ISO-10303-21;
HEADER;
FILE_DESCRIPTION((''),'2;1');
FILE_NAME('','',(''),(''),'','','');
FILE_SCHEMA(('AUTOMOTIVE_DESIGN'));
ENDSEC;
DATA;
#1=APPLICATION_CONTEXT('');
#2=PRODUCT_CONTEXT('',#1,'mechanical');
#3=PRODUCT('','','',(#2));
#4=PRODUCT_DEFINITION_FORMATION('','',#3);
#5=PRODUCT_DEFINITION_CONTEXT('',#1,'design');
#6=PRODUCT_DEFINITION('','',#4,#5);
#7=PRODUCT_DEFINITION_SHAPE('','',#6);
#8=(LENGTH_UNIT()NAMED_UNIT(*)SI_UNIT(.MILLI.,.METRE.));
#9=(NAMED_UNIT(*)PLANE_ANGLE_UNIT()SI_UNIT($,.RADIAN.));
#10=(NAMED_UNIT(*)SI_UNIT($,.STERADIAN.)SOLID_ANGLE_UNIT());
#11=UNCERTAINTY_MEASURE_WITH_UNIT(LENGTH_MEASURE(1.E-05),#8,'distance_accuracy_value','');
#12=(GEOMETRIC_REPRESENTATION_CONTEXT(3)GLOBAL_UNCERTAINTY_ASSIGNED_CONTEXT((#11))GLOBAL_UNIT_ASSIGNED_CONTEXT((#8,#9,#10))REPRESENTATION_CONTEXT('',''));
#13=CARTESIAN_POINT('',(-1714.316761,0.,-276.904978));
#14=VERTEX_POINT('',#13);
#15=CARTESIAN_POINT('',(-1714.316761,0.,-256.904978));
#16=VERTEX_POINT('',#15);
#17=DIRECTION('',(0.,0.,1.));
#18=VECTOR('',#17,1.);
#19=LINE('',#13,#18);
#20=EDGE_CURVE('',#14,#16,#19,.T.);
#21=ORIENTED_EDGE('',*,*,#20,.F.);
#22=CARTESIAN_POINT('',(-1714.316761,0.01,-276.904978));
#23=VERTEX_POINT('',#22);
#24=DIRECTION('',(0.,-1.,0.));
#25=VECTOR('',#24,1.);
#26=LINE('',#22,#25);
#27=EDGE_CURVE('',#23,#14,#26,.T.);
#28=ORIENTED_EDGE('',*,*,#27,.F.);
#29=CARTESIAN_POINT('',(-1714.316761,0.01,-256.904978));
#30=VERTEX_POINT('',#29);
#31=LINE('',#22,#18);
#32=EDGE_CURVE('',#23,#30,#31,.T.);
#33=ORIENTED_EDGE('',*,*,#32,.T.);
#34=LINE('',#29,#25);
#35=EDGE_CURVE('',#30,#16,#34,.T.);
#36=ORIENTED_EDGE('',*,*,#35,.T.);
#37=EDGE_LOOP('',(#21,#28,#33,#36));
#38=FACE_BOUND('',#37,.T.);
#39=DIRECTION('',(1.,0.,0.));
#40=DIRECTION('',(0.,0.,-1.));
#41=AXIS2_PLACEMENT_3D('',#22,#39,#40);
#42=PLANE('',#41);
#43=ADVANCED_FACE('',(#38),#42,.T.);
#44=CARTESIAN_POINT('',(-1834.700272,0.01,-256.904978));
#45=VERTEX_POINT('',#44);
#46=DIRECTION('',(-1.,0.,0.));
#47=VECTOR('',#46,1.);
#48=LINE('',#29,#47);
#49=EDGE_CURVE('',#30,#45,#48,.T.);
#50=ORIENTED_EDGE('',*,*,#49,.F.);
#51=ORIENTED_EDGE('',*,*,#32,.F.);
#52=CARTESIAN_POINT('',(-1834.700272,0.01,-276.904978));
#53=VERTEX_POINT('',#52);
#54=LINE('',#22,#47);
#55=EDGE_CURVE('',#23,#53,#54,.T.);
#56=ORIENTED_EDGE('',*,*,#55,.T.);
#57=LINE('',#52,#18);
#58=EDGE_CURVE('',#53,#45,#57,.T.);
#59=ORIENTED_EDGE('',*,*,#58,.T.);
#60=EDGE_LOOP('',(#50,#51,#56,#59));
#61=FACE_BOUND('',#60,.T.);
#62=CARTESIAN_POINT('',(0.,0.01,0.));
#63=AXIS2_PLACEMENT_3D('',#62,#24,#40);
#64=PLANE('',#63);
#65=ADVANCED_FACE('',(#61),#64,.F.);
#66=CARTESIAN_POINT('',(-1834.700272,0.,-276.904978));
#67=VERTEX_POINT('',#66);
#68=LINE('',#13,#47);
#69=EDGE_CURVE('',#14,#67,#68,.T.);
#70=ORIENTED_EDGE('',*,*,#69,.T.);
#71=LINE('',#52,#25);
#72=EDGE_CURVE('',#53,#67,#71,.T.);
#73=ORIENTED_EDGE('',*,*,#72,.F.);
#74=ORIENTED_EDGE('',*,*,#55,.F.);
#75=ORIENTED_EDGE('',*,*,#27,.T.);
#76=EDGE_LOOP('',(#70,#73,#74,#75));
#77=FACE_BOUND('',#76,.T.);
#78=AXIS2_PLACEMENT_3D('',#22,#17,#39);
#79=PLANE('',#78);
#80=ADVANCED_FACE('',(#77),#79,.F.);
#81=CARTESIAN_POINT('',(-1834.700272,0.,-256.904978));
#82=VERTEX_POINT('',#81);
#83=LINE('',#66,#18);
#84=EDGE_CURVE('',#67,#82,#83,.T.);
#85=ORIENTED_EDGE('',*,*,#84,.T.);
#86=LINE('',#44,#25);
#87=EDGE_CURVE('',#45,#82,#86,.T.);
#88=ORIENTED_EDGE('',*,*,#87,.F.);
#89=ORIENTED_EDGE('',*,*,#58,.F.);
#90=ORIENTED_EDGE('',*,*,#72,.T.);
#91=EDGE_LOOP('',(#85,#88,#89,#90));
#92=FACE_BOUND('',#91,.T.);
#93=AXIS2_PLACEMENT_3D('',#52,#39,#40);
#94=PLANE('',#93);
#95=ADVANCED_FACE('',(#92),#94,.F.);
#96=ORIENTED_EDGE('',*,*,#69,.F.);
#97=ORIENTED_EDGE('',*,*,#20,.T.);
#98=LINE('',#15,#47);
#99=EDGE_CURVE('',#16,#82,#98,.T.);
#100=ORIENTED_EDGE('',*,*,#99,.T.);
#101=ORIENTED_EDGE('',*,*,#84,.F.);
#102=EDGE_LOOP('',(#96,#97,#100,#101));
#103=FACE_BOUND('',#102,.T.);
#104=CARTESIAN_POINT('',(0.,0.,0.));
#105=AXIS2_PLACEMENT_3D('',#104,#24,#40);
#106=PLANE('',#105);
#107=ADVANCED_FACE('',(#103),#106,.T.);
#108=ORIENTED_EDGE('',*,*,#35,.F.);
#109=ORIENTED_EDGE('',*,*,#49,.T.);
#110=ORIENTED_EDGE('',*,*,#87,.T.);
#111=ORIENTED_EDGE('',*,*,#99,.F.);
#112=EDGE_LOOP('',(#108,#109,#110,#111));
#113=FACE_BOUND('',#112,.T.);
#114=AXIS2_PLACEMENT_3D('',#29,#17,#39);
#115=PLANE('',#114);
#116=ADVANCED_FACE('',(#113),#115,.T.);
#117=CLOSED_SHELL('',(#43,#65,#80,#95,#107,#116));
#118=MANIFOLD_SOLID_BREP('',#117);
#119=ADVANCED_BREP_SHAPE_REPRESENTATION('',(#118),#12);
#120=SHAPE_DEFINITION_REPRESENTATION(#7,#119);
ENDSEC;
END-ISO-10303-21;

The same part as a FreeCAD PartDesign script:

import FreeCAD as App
import Part
import Sketcher
from FreeCAD import Vector


def add_polygon(sketch, points):
    """Adds a closed chain of lines whose ends are joined by coincident constraints."""
    first, n = sketch.GeometryCount, len(points)
    for a, b in zip(points, points[1:] + points[:1]):
        sketch.addGeometry(Part.LineSegment(App.Vector(*a, 0), App.Vector(*b, 0)), False)
    for i in range(n):
        sketch.addConstraint(Sketcher.Constraint("Coincident", first + i, 2, first + (i + 1) % n, 1))

doc = App.newDocument("Part")
body = doc.addObject("PartDesign::Body", "Body")

sketch1 = body.newObject("Sketcher::SketchObject", "Sketch")
sketch1.AttachmentSupport = (doc.getObject("XZ_Plane"), [""])
sketch1.MapMode = "FlatFace"
add_polygon(sketch1, [(-1834.700272, -276.904978), (-1834.700272, -256.904978), (-1714.316761, -256.904978), (-1714.316761, -276.904978)])
sketch1.addConstraint([
    Sketcher.Constraint("Vertical", 0),
    Sketcher.Constraint("Horizontal", 1),
    Sketcher.Constraint("Vertical", 2),
    Sketcher.Constraint("Horizontal", 3),
    Sketcher.Constraint("DistanceY", 0, 1, 0, 2, 20.0),
    Sketcher.Constraint("DistanceX", 1, 1, 1, 2, 120.383511),
    Sketcher.Constraint("DistanceX", 1, 2, -1, 1, 1714.316761),
    Sketcher.Constraint("DistanceY", 0, 2, -1, 1, 256.904978),
])
pad1 = body.newObject("PartDesign::Pad", "Pad")
pad1.Profile = sketch1
pad1.Length = 0.01
pad1.Reversed = True

doc.recompute()
